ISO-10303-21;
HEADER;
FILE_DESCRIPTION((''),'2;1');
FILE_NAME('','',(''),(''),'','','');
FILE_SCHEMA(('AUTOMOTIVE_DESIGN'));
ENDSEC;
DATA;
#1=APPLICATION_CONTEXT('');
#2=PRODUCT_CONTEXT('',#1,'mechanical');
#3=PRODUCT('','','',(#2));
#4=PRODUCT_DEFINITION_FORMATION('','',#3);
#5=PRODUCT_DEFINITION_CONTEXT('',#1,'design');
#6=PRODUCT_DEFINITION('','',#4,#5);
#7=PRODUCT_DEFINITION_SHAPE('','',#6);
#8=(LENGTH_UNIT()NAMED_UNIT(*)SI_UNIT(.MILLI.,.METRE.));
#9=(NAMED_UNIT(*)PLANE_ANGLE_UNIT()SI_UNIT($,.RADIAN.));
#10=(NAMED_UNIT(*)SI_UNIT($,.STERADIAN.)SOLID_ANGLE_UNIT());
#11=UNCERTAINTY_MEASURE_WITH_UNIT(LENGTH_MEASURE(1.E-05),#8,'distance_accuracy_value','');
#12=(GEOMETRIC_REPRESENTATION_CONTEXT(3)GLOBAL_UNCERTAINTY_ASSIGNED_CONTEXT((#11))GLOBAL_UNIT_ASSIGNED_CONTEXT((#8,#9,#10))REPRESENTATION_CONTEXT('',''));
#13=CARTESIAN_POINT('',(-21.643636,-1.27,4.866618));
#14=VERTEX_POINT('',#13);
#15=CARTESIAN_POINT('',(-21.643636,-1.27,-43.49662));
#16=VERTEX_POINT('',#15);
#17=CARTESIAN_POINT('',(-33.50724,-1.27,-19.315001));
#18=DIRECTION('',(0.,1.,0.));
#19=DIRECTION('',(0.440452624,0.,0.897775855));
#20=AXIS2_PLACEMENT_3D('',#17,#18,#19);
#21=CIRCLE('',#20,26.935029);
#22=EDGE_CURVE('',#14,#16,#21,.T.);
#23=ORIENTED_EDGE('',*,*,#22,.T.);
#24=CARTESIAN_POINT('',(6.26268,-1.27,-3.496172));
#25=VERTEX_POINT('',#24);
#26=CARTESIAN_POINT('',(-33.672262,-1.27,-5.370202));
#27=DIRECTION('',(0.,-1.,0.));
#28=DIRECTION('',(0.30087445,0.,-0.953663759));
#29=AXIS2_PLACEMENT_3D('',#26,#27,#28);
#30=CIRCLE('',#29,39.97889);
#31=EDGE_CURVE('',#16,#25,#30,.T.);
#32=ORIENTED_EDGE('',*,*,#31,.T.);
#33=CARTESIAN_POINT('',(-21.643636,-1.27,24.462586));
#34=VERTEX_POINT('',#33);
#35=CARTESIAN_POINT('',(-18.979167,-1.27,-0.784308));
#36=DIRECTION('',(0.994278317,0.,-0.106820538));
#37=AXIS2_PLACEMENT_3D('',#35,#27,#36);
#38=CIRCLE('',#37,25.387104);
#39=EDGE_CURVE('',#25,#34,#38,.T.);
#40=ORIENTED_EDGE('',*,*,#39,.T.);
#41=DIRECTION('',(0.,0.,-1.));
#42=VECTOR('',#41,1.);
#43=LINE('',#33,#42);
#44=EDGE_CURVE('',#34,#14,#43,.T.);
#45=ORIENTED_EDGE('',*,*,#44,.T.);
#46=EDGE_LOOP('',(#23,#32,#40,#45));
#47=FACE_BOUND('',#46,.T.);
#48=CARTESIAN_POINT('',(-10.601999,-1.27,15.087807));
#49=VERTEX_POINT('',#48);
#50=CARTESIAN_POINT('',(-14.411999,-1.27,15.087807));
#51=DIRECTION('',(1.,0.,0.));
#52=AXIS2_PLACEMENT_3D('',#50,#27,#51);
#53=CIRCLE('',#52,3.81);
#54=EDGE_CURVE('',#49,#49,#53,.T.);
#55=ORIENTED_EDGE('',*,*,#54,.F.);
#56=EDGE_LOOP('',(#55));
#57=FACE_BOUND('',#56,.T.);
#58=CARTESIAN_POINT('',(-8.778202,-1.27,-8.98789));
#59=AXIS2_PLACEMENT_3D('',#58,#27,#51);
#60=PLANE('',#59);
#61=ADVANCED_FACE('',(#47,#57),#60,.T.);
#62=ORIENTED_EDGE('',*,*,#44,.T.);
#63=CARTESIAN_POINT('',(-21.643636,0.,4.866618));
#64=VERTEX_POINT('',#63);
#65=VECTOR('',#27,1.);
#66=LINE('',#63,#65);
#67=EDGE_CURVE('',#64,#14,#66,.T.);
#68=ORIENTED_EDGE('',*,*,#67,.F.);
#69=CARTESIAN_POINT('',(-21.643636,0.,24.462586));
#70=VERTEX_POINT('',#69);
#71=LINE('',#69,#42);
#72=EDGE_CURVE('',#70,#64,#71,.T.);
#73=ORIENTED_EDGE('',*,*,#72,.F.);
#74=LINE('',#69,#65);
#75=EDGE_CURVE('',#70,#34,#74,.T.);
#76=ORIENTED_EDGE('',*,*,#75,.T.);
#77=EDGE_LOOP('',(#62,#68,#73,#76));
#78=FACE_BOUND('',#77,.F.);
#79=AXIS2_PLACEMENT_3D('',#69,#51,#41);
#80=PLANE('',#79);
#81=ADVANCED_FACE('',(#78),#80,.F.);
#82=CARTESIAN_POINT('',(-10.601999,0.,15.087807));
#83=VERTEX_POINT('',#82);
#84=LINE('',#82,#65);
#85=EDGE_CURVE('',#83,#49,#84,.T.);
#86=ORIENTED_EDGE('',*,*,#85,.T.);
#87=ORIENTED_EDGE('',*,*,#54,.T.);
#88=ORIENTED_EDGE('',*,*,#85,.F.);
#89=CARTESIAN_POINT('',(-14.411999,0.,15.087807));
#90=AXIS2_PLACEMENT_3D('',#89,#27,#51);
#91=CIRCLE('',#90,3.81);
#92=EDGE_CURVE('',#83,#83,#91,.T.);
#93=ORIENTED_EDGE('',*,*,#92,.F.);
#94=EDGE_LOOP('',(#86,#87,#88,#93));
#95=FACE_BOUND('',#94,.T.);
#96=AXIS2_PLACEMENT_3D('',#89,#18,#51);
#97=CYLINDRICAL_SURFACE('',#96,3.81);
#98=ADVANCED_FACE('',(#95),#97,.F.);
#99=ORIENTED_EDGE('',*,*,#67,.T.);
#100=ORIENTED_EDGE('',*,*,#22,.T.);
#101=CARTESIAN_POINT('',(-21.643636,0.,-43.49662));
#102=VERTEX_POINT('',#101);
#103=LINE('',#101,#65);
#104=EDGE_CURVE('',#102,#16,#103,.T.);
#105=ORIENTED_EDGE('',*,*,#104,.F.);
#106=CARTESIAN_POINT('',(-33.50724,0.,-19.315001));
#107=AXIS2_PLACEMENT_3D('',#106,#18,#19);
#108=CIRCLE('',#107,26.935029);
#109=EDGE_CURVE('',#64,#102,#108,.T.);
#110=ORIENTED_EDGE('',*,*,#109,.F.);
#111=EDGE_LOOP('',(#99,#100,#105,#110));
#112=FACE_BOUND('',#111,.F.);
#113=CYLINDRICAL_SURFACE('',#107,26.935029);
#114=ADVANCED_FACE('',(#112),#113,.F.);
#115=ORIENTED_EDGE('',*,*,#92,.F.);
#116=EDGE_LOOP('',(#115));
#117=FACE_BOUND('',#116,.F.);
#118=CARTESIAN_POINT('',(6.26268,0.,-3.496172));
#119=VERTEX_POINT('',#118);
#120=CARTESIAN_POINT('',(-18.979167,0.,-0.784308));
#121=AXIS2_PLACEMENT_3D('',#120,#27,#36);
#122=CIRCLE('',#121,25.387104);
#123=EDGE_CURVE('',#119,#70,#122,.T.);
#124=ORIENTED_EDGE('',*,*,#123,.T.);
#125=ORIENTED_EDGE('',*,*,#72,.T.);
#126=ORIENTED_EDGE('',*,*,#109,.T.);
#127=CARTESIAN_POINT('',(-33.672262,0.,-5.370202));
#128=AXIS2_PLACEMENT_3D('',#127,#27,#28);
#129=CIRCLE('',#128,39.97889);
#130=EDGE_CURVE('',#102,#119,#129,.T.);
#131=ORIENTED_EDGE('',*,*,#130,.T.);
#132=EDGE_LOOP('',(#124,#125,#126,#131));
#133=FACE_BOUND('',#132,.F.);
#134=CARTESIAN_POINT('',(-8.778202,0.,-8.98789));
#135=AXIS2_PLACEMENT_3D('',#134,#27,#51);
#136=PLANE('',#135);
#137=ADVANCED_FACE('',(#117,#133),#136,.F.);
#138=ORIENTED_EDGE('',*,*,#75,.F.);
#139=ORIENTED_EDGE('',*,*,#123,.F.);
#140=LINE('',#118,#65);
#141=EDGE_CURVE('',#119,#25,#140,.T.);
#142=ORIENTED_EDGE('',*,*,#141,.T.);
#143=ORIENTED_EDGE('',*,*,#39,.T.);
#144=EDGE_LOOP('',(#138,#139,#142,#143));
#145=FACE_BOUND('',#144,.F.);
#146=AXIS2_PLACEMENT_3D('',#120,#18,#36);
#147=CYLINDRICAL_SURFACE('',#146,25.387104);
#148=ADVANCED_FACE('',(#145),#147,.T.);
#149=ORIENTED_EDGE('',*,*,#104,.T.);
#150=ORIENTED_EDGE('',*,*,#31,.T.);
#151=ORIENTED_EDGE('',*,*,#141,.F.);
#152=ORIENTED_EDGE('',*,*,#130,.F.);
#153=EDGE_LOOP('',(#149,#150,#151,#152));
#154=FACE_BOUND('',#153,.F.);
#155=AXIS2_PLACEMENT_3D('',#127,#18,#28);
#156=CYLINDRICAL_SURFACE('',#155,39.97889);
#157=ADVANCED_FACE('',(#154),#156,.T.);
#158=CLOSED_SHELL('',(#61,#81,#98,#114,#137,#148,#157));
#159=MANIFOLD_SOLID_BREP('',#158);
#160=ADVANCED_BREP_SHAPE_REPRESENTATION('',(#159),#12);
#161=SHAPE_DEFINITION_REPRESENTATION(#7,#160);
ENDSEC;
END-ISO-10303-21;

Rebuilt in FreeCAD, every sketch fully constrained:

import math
import FreeCAD as App
import Part
import Sketcher
from FreeCAD import Vector
Q = App.Units.Quantity

doc = App.newDocument("Part")
body = doc.addObject("PartDesign::Body", "Body")

sketch1 = doc.addObject("Sketcher::SketchObject", "Sketch")
body.addObject(sketch1)
sketch1.AttachmentSupport = (doc.XZ_Plane, [""])
sketch1.MapMode = "FlatFace"
sketch1.addGeometry([
    Part.ArcOfCircle(Part.Circle(Vector(-33.7, -5.4, 0), Vector(0, 0, 1), 40), math.radians(-72), math.radians(3)),
    Part.ArcOfCircle(Part.Circle(Vector(-19, -0.8, 0), Vector(0, 0, 1), 25.4), math.radians(-6), math.radians(96)),
    Part.LineSegment(Vector(-21.6, 24.5, 0), Vector(-21.6, 4.9, 0)),
    Part.ArcOfCircle(Part.Circle(Vector(-33.5, -19.3, 0), Vector(0, 0, 1), 26.9), math.radians(-64), math.radians(64)),
    Part.Circle(Vector(-14.4, 15.1, 0), Vector(0, 0, 1), 3.8),
], False)
sketch1.addConstraint([
    Sketcher.Constraint("Coincident", 0, 2, 1, 1),
    Sketcher.Constraint("Coincident", 1, 2, 2, 1),
    Sketcher.Constraint("Coincident", 2, 2, 3, 2),
    Sketcher.Constraint("Coincident", 3, 1, 0, 1),
    Sketcher.Constraint("Vertical", 2),
    Sketcher.Constraint("Vertical", 2, 2, 3, 1),
    Sketcher.Constraint("Diameter", 4, Q("0.3 in")),
    Sketcher.Constraint("Radius", 0, Q("39.97889 mm")),
    Sketcher.Constraint("Radius", 3, Q("26.935029 mm")),
    Sketcher.Constraint("Radius", 1, Q("25.387104 mm")),
    Sketcher.Constraint("DistanceY", 2, 2, 2, 1, Q("19.595968 mm")),
    Sketcher.Constraint("DistanceY", 0, 3, -1, 1, Q("5.370202 mm")),
    Sketcher.Constraint("DistanceY", 3, 3, -1, 1, Q("19.315001 mm")),
    Sketcher.Constraint("DistanceX", 4, 3, -1, 1, Q("14.411999 mm")),
    Sketcher.Constraint("DistanceX", 3, 3, -1, 1, Q("33.50724 mm")),
    Sketcher.Constraint("DistanceX", -1, 1, 0, 2, Q("6.26268 mm")),
    Sketcher.Constraint("DistanceY", 0, 2, -1, 1, Q("3.496172 mm")),
    Sketcher.Constraint("DistanceY", 0, 3, 4, 3, Q("20.458009 mm")),
])
pad1 = doc.addObject("PartDesign::Pad", "Pad")
body.addObject(pad1)
pad1.Profile = sketch1
pad1.Length = Q("0.05 in")

doc.recompute()
